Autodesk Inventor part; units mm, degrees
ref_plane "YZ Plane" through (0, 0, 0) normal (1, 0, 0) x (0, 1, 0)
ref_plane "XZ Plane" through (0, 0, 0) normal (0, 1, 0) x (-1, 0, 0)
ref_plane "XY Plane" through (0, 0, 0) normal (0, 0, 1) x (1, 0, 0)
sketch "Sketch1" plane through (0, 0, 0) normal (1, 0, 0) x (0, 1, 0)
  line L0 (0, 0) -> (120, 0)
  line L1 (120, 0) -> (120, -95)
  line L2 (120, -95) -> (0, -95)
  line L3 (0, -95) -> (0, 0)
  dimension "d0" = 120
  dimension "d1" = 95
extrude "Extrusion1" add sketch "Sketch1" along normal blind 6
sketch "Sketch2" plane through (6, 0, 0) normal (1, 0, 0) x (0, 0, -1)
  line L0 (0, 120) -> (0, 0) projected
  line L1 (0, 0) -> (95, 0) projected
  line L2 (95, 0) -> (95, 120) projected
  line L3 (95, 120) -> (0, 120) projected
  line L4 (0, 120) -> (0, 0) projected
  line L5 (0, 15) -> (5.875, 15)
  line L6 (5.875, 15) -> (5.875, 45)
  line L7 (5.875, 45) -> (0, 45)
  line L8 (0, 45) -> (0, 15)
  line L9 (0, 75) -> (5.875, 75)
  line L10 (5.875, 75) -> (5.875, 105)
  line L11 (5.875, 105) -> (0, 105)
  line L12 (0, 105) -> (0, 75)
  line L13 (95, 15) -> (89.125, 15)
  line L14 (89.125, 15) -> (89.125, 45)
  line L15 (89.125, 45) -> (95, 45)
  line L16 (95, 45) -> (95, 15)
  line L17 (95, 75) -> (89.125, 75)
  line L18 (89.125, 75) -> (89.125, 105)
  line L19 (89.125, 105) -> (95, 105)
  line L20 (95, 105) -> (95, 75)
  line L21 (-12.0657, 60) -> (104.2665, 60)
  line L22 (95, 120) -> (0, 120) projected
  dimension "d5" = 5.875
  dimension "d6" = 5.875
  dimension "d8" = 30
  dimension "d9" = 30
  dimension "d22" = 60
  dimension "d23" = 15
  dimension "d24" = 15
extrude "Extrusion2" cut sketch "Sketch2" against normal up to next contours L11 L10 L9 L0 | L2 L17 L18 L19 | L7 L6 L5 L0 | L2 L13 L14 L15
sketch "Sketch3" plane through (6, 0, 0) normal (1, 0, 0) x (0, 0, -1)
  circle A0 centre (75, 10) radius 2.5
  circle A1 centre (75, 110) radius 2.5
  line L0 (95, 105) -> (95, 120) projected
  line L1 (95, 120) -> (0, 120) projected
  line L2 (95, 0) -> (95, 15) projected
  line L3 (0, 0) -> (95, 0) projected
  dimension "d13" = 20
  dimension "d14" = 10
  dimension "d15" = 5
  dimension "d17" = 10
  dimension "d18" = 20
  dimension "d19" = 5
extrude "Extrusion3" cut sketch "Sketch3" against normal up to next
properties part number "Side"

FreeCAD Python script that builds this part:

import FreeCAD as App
import Part
import Sketcher

V = App.Vector


def add_polygon(sketch, points):
    """Adds a closed chain of lines whose ends are joined by coincident constraints."""
    first, n = sketch.GeometryCount, len(points)
    for a, b in zip(points, points[1:] + points[:1]):
        sketch.addGeometry(Part.LineSegment(App.Vector(*a, 0), App.Vector(*b, 0)), False)
    for i in range(n):
        sketch.addConstraint(Sketcher.Constraint("Coincident", first + i, 2, first + (i + 1) % n, 1))

doc = App.newDocument("Part")
body = doc.addObject("PartDesign::Body", "Body")

# Sketch on YZ plane
sketch1 = doc.addObject("Sketcher::SketchObject", "Sketch")
body.addObject(sketch1)
sketch1.AttachmentSupport = (doc.YZ_Plane, [""])
sketch1.MapMode = "FlatFace"
add_polygon(sketch1, [(120, 0), (0, 0), (0, -95), (120, -95)])  # lines 0-3
sketch1.addConstraint(Sketcher.Constraint("Horizontal", 0))
sketch1.addConstraint(Sketcher.Constraint("Vertical", 1))
sketch1.addConstraint(Sketcher.Constraint("Horizontal", 2))
sketch1.addConstraint(Sketcher.Constraint("Vertical", 3))
sketch1.addConstraint(Sketcher.Constraint("Coincident", 0, 2, -1, 1))
sketch1.addConstraint(Sketcher.Constraint("DistanceX", 0, 2, 0, 1, 120.0))
sketch1.addConstraint(Sketcher.Constraint("DistanceY", 1, 2, 1, 1, 95.0))
pad1 = doc.addObject("PartDesign::Pad", "Pad")
body.addObject(pad1)
pad1.Profile = sketch1
pad1.Length = 6

# Sketch on YZ plane
sketch2 = doc.addObject("Sketcher::SketchObject", "Sketch001")
body.addObject(sketch2)
sketch2.AttachmentSupport = (doc.YZ_Plane, [""])
sketch2.MapMode = "FlatFace"
sketch2.AttachmentOffset = App.Placement(V(0, 0, 6), App.Rotation())
add_polygon(sketch2, [(105, -5.875), (105, 0), (75, 0), (75, -5.875)])  # lines 0-3
add_polygon(sketch2, [(75, -95), (105, -95), (105, -89.125), (75, -89.125)])  # lines 4-7
add_polygon(sketch2, [(45, -5.875), (45, 0), (15, 0), (15, -5.875)])  # lines 8-11
add_polygon(sketch2, [(15, -95), (45, -95), (45, -89.125), (15, -89.125)])  # lines 12-15
sketch2.addConstraint(Sketcher.Constraint("Vertical", 0))
sketch2.addConstraint(Sketcher.Constraint("Horizontal", 1))
sketch2.addConstraint(Sketcher.Constraint("Vertical", 2))
sketch2.addConstraint(Sketcher.Constraint("Horizontal", 3))
sketch2.addConstraint(Sketcher.Constraint("Horizontal", 4))
sketch2.addConstraint(Sketcher.Constraint("Vertical", 5))
sketch2.addConstraint(Sketcher.Constraint("Horizontal", 6))
sketch2.addConstraint(Sketcher.Constraint("Vertical", 7))
sketch2.addConstraint(Sketcher.Constraint("Vertical", 8))
sketch2.addConstraint(Sketcher.Constraint("Horizontal", 9))
sketch2.addConstraint(Sketcher.Constraint("Vertical", 10))
sketch2.addConstraint(Sketcher.Constraint("Horizontal", 11))
sketch2.addConstraint(Sketcher.Constraint("Horizontal", 12))
sketch2.addConstraint(Sketcher.Constraint("Vertical", 13))
sketch2.addConstraint(Sketcher.Constraint("Horizontal", 14))
sketch2.addConstraint(Sketcher.Constraint("Vertical", 15))
sketch2.addConstraint(Sketcher.Constraint("PointOnObject", 0, 2, -1))
sketch2.addConstraint(Sketcher.Constraint("PointOnObject", 8, 2, -1))
sketch2.addConstraint(Sketcher.Constraint("Horizontal", 3, 2, 10, 2))
sketch2.addConstraint(Sketcher.Constraint("Horizontal", 7, 2, 12, 2))
sketch2.addConstraint(Sketcher.Constraint("Horizontal", 6, 2, 13, 2))
sketch2.addConstraint(Sketcher.Constraint("Vertical", 3, 2, 4, 2))
sketch2.addConstraint(Sketcher.Constraint("Vertical", 2, 2, 6, 2))
sketch2.addConstraint(Sketcher.Constraint("Vertical", 11, 2, 12, 2))
sketch2.addConstraint(Sketcher.Constraint("Vertical", 10, 2, 14, 2))
sketch2.addConstraint(Sketcher.Constraint("Equal", 6, 9))
sketch2.addConstraint(Sketcher.Constraint("Equal", 2, 5))
sketch2.addConstraint(Sketcher.Constraint("DistanceX", 1, 2, 1, 1, 30.0))
sketch2.addConstraint(Sketcher.Constraint("DistanceX", -1, 1, 9, 2, 15.0))
sketch2.addConstraint(Sketcher.Constraint("DistanceX", 8, 2, 1, 2, 30.0))
sketch2.addConstraint(Sketcher.Constraint("DistanceY", 0, 1, 0, 2, 5.875))
sketch2.addConstraint(Sketcher.Constraint("DistanceY", 4, 2, -1, 1, 95.0))
pocket1 = doc.addObject("PartDesign::Pocket", "Pocket")
body.addObject(pocket1)
pocket1.Profile = sketch2
pocket1.Type = "UpToFirst"

# Sketch on YZ plane
sketch3 = doc.addObject("Sketcher::SketchObject", "Sketch002")
body.addObject(sketch3)
sketch3.AttachmentSupport = (doc.YZ_Plane, [""])
sketch3.MapMode = "FlatFace"
sketch3.AttachmentOffset = App.Placement(V(0, 0, 6), App.Rotation())
sketch3.addGeometry(Part.Circle(V(10, -75, 0), V(0, 0, 1), 2.5), False)
sketch3.addGeometry(Part.Circle(V(110, -75, 0), V(0, 0, 1), 2.5), False)
sketch3.addConstraint(Sketcher.Constraint("Equal", 0, 1))
sketch3.addConstraint(Sketcher.Constraint("Horizontal", 0, 3, 1, 3))
sketch3.addConstraint(Sketcher.Constraint("Diameter", 0, 5.0))
sketch3.addConstraint(Sketcher.Constraint("DistanceX", -1, 1, 0, 3, 10.0))
sketch3.addConstraint(Sketcher.Constraint("DistanceY", 0, 3, -1, 1, 75.0))
sketch3.addConstraint(Sketcher.Constraint("DistanceX", -1, 1, 1, 3, 110.0))
pocket2 = doc.addObject("PartDesign::Pocket", "Pocket001")
body.addObject(pocket2)
pocket2.Profile = sketch3
pocket2.Length = 6

doc.recompute()
